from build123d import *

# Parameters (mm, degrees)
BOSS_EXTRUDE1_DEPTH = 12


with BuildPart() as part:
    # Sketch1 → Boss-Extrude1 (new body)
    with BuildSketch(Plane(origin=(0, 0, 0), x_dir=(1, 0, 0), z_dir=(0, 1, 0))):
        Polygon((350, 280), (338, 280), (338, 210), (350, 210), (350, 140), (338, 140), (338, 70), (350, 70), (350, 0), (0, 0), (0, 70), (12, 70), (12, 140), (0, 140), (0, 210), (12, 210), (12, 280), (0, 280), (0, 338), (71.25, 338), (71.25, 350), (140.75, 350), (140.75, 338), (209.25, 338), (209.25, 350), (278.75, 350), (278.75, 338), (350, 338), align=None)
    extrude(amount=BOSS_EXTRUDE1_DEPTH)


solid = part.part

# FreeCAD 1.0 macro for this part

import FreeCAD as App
import Part
import Sketcher

doc = App.newDocument("Part")
body = doc.addObject("PartDesign::Body", "Body")

# Sketch on XZ plane
sketch1 = doc.addObject("Sketcher::SketchObject", "Sketch")
body.addObject(sketch1)
sketch1.AttachmentSupport = (doc.XZ_Plane, [""])
sketch1.MapMode = "FlatFace"
sketch1.addGeometry(Part.LineSegment(App.Vector(338, -280, 0), App.Vector(350, -280, 0)), False)
sketch1.addGeometry(Part.LineSegment(App.Vector(350, -280, 0), App.Vector(350, -338, 0)), False)
sketch1.addGeometry(Part.LineSegment(App.Vector(350, -338, 0), App.Vector(279, -338, 0)), False)
sketch1.addGeometry(Part.LineSegment(App.Vector(279, -338, 0), App.Vector(279, -350, 0)), False)
sketch1.addGeometry(Part.LineSegment(App.Vector(279, -350, 0), App.Vector(209, -350, 0)), False)
sketch1.addGeometry(Part.LineSegment(App.Vector(209, -350, 0), App.Vector(209, -338, 0)), False)
sketch1.addGeometry(Part.LineSegment(App.Vector(209, -338, 0), App.Vector(141, -338, 0)), False)
sketch1.addGeometry(Part.LineSegment(App.Vector(141, -338, 0), App.Vector(141, -350, 0)), False)
sketch1.addGeometry(Part.LineSegment(App.Vector(141, -350, 0), App.Vector(71, -350, 0)), False)
sketch1.addGeometry(Part.LineSegment(App.Vector(71, -350, 0), App.Vector(71, -338, 0)), False)
sketch1.addGeometry(Part.LineSegment(App.Vector(71, -338, 0), App.Vector(0, -338, 0)), False)
sketch1.addGeometry(Part.LineSegment(App.Vector(0, -338, 0), App.Vector(0, -280, 0)), False)
sketch1.addGeometry(Part.LineSegment(App.Vector(0, -280, 0), App.Vector(12, -280, 0)), False)
sketch1.addGeometry(Part.LineSegment(App.Vector(12, -280, 0), App.Vector(12, -210, 0)), False)
sketch1.addGeometry(Part.LineSegment(App.Vector(12, -210, 0), App.Vector(0, -210, 0)), False)
sketch1.addGeometry(Part.LineSegment(App.Vector(0, -210, 0), App.Vector(0, -140, 0)), False)
sketch1.addGeometry(Part.LineSegment(App.Vector(0, -140, 0), App.Vector(12, -140, 0)), False)
sketch1.addGeometry(Part.LineSegment(App.Vector(12, -140, 0), App.Vector(12, -70, 0)), False)
sketch1.addGeometry(Part.LineSegment(App.Vector(12, -70, 0), App.Vector(0, -70, 0)), False)
sketch1.addGeometry(Part.LineSegment(App.Vector(0, -70, 0), App.Vector(0, 0, 0)), False)
sketch1.addGeometry(Part.LineSegment(App.Vector(0, 0, 0), App.Vector(350, 0, 0)), False)
sketch1.addGeometry(Part.LineSegment(App.Vector(350, 0, 0), App.Vector(350, -70, 0)), False)
sketch1.addGeometry(Part.LineSegment(App.Vector(350, -70, 0), App.Vector(338, -70, 0)), False)
sketch1.addGeometry(Part.LineSegment(App.Vector(338, -70, 0), App.Vector(338, -140, 0)), False)
sketch1.addGeometry(Part.LineSegment(App.Vector(338, -140, 0), App.Vector(350, -140, 0)), False)
sketch1.addGeometry(Part.LineSegment(App.Vector(350, -140, 0), App.Vector(350, -210, 0)), False)
sketch1.addGeometry(Part.LineSegment(App.Vector(350, -210, 0), App.Vector(338, -210, 0)), False)
sketch1.addGeometry(Part.LineSegment(App.Vector(338, -210, 0), App.Vector(338, -280, 0)), False)
sketch1.addConstraint(Sketcher.Constraint("Coincident", 0, 2, 1, 1))
sketch1.addConstraint(Sketcher.Constraint("Coincident", 1, 2, 2, 1))
sketch1.addConstraint(Sketcher.Constraint("Coincident", 2, 2, 3, 1))
sketch1.addConstraint(Sketcher.Constraint("Coincident", 3, 2, 4, 1))
sketch1.addConstraint(Sketcher.Constraint("Coincident", 4, 2, 5, 1))
sketch1.addConstraint(Sketcher.Constraint("Coincident", 5, 2, 6, 1))
sketch1.addConstraint(Sketcher.Constraint("Coincident", 6, 2, 7, 1))
sketch1.addConstraint(Sketcher.Constraint("Coincident", 7, 2, 8, 1))
sketch1.addConstraint(Sketcher.Constraint("Coincident", 8, 2, 9, 1))
sketch1.addConstraint(Sketcher.Constraint("Coincident", 9, 2, 10, 1))
sketch1.addConstraint(Sketcher.Constraint("Coincident", 10, 2, 11, 1))
sketch1.addConstraint(Sketcher.Constraint("Coincident", 11, 2, 12, 1))
sketch1.addConstraint(Sketcher.Constraint("Coincident", 12, 2, 13, 1))
sketch1.addConstraint(Sketcher.Constraint("Coincident", 13, 2, 14, 1))
sketch1.addConstraint(Sketcher.Constraint("Coincident", 14, 2, 15, 1))
sketch1.addConstraint(Sketcher.Constraint("Coincident", 15, 2, 16, 1))
sketch1.addConstraint(Sketcher.Constraint("Coincident", 16, 2, 17, 1))
sketch1.addConstraint(Sketcher.Constraint("Coincident", 17, 2, 18, 1))
sketch1.addConstraint(Sketcher.Constraint("Coincident", 18, 2, 19, 1))
sketch1.addConstraint(Sketcher.Constraint("Coincident", 19, 2, 20, 1))
sketch1.addConstraint(Sketcher.Constraint("Coincident", 20, 2, 21, 1))
sketch1.addConstraint(Sketcher.Constraint("Coincident", 21, 2, 22, 1))
sketch1.addConstraint(Sketcher.Constraint("Coincident", 22, 2, 23, 1))
sketch1.addConstraint(Sketcher.Constraint("Coincident", 23, 2, 24, 1))
sketch1.addConstraint(Sketcher.Constraint("Coincident", 24, 2, 25, 1))
sketch1.addConstraint(Sketcher.Constraint("Coincident", 25, 2, 26, 1))
sketch1.addConstraint(Sketcher.Constraint("Coincident", 26, 2, 27, 1))
sketch1.addConstraint(Sketcher.Constraint("Coincident", 27, 2, 0, 1))
sketch1.addConstraint(Sketcher.Constraint("Horizontal", 0))
sketch1.addConstraint(Sketcher.Constraint("Vertical", 1))
sketch1.addConstraint(Sketcher.Constraint("Horizontal", 2))
sketch1.addConstraint(Sketcher.Constraint("Vertical", 3))
sketch1.addConstraint(Sketcher.Constraint("Horizontal", 4))
sketch1.addConstraint(Sketcher.Constraint("Vertical", 5))
sketch1.addConstraint(Sketcher.Constraint("Horizontal", 6))
sketch1.addConstraint(Sketcher.Constraint("Vertical", 7))
sketch1.addConstraint(Sketcher.Constraint("Horizontal", 8))
sketch1.addConstraint(Sketcher.Constraint("Vertical", 9))
sketch1.addConstraint(Sketcher.Constraint("Horizontal", 10))
sketch1.addConstraint(Sketcher.Constraint("Vertical", 11))
sketch1.addConstraint(Sketcher.Constraint("Horizontal", 12))
sketch1.addConstraint(Sketcher.Constraint("Vertical", 13))
sketch1.addConstraint(Sketcher.Constraint("Horizontal", 14))
sketch1.addConstraint(Sketcher.Constraint("Vertical", 15))
sketch1.addConstraint(Sketcher.Constraint("Horizontal", 16))
sketch1.addConstraint(Sketcher.Constraint("Vertical", 17))
sketch1.addConstraint(Sketcher.Constraint("Horizontal", 18))
sketch1.addConstraint(Sketcher.Constraint("Vertical", 19))
sketch1.addConstraint(Sketcher.Constraint("Horizontal", 20))
sketch1.addConstraint(Sketcher.Constraint("Vertical", 21))
sketch1.addConstraint(Sketcher.Constraint("Horizontal", 22))
sketch1.addConstraint(Sketcher.Constraint("Vertical", 23))
sketch1.addConstraint(Sketcher.Constraint("Horizontal", 24))
sketch1.addConstraint(Sketcher.Constraint("Vertical", 25))
sketch1.addConstraint(Sketcher.Constraint("Horizontal", 26))
sketch1.addConstraint(Sketcher.Constraint("Vertical", 27))
sketch1.addConstraint(Sketcher.Constraint("Coincident", 19, 2, -1, 1))
sketch1.addConstraint(Sketcher.Constraint("PointOnObject", 10, 2, -2))
sketch1.addConstraint(Sketcher.Constraint("PointOnObject", 14, 2, -2))
sketch1.addConstraint(Sketcher.Constraint("Horizontal", 2, 2, 5, 2))
sketch1.addConstraint(Sketcher.Constraint("Horizontal", 4, 2, 7, 2))
sketch1.addConstraint(Sketcher.Constraint("Horizontal", 6, 2, 9, 2))
sketch1.addConstraint(Sketcher.Constraint("Horizontal", 0, 2, 11, 2))
sketch1.addConstraint(Sketcher.Constraint("Horizontal", 18, 2, 21, 2))
sketch1.addConstraint(Sketcher.Constraint("Horizontal", 16, 2, 23, 2))
sketch1.addConstraint(Sketcher.Constraint("Horizontal", 14, 2, 25, 2))
sketch1.addConstraint(Sketcher.Constraint("Vertical", 13, 2, 16, 2))
sketch1.addConstraint(Sketcher.Constraint("Vertical", 1, 2, 20, 2))
sketch1.addConstraint(Sketcher.Constraint("Vertical", 21, 2, 24, 2))
sketch1.addConstraint(Sketcher.Constraint("Vertical", 23, 2, 26, 2))
sketch1.addConstraint(Sketcher.Constraint("Equal", 4, 8))
sketch1.addConstraint(Sketcher.Constraint("Equal", 2, 10))
sketch1.addConstraint(Sketcher.Constraint("Equal", 0, 12))
sketch1.addConstraint(Sketcher.Constraint("Equal", 26, 3))
sketch1.addConstraint(Sketcher.Constraint("Equal", 13, 15))
sketch1.addConstraint(Sketcher.Constraint("Equal", 15, 17))
sketch1.addConstraint(Sketcher.Constraint("Equal", 17, 19))
sketch1.addConstraint(Sketcher.Constraint("DistanceX", 0, 1, 0, 2, 12.0))
sketch1.addConstraint(Sketcher.Constraint("DistanceX", 20, 1, 20, 2, 350.0))
sketch1.addConstraint(Sketcher.Constraint("DistanceY", 1, 2, 1, 1, 58.0))
sketch1.addConstraint(Sketcher.Constraint("DistanceY", 13, 1, 13, 2, 70.0))
sketch1.addConstraint(Sketcher.Constraint("DistanceX", 4, 2, 4, 1, 69.5))
sketch1.addConstraint(Sketcher.Constraint("DistanceX", 6, 2, 6, 1, 68.5))
pad1 = doc.addObject("PartDesign::Pad", "Pad")
body.addObject(pad1)
pad1.Profile = sketch1
pad1.Length = 12
pad1.Reversed = True

doc.recompute()
